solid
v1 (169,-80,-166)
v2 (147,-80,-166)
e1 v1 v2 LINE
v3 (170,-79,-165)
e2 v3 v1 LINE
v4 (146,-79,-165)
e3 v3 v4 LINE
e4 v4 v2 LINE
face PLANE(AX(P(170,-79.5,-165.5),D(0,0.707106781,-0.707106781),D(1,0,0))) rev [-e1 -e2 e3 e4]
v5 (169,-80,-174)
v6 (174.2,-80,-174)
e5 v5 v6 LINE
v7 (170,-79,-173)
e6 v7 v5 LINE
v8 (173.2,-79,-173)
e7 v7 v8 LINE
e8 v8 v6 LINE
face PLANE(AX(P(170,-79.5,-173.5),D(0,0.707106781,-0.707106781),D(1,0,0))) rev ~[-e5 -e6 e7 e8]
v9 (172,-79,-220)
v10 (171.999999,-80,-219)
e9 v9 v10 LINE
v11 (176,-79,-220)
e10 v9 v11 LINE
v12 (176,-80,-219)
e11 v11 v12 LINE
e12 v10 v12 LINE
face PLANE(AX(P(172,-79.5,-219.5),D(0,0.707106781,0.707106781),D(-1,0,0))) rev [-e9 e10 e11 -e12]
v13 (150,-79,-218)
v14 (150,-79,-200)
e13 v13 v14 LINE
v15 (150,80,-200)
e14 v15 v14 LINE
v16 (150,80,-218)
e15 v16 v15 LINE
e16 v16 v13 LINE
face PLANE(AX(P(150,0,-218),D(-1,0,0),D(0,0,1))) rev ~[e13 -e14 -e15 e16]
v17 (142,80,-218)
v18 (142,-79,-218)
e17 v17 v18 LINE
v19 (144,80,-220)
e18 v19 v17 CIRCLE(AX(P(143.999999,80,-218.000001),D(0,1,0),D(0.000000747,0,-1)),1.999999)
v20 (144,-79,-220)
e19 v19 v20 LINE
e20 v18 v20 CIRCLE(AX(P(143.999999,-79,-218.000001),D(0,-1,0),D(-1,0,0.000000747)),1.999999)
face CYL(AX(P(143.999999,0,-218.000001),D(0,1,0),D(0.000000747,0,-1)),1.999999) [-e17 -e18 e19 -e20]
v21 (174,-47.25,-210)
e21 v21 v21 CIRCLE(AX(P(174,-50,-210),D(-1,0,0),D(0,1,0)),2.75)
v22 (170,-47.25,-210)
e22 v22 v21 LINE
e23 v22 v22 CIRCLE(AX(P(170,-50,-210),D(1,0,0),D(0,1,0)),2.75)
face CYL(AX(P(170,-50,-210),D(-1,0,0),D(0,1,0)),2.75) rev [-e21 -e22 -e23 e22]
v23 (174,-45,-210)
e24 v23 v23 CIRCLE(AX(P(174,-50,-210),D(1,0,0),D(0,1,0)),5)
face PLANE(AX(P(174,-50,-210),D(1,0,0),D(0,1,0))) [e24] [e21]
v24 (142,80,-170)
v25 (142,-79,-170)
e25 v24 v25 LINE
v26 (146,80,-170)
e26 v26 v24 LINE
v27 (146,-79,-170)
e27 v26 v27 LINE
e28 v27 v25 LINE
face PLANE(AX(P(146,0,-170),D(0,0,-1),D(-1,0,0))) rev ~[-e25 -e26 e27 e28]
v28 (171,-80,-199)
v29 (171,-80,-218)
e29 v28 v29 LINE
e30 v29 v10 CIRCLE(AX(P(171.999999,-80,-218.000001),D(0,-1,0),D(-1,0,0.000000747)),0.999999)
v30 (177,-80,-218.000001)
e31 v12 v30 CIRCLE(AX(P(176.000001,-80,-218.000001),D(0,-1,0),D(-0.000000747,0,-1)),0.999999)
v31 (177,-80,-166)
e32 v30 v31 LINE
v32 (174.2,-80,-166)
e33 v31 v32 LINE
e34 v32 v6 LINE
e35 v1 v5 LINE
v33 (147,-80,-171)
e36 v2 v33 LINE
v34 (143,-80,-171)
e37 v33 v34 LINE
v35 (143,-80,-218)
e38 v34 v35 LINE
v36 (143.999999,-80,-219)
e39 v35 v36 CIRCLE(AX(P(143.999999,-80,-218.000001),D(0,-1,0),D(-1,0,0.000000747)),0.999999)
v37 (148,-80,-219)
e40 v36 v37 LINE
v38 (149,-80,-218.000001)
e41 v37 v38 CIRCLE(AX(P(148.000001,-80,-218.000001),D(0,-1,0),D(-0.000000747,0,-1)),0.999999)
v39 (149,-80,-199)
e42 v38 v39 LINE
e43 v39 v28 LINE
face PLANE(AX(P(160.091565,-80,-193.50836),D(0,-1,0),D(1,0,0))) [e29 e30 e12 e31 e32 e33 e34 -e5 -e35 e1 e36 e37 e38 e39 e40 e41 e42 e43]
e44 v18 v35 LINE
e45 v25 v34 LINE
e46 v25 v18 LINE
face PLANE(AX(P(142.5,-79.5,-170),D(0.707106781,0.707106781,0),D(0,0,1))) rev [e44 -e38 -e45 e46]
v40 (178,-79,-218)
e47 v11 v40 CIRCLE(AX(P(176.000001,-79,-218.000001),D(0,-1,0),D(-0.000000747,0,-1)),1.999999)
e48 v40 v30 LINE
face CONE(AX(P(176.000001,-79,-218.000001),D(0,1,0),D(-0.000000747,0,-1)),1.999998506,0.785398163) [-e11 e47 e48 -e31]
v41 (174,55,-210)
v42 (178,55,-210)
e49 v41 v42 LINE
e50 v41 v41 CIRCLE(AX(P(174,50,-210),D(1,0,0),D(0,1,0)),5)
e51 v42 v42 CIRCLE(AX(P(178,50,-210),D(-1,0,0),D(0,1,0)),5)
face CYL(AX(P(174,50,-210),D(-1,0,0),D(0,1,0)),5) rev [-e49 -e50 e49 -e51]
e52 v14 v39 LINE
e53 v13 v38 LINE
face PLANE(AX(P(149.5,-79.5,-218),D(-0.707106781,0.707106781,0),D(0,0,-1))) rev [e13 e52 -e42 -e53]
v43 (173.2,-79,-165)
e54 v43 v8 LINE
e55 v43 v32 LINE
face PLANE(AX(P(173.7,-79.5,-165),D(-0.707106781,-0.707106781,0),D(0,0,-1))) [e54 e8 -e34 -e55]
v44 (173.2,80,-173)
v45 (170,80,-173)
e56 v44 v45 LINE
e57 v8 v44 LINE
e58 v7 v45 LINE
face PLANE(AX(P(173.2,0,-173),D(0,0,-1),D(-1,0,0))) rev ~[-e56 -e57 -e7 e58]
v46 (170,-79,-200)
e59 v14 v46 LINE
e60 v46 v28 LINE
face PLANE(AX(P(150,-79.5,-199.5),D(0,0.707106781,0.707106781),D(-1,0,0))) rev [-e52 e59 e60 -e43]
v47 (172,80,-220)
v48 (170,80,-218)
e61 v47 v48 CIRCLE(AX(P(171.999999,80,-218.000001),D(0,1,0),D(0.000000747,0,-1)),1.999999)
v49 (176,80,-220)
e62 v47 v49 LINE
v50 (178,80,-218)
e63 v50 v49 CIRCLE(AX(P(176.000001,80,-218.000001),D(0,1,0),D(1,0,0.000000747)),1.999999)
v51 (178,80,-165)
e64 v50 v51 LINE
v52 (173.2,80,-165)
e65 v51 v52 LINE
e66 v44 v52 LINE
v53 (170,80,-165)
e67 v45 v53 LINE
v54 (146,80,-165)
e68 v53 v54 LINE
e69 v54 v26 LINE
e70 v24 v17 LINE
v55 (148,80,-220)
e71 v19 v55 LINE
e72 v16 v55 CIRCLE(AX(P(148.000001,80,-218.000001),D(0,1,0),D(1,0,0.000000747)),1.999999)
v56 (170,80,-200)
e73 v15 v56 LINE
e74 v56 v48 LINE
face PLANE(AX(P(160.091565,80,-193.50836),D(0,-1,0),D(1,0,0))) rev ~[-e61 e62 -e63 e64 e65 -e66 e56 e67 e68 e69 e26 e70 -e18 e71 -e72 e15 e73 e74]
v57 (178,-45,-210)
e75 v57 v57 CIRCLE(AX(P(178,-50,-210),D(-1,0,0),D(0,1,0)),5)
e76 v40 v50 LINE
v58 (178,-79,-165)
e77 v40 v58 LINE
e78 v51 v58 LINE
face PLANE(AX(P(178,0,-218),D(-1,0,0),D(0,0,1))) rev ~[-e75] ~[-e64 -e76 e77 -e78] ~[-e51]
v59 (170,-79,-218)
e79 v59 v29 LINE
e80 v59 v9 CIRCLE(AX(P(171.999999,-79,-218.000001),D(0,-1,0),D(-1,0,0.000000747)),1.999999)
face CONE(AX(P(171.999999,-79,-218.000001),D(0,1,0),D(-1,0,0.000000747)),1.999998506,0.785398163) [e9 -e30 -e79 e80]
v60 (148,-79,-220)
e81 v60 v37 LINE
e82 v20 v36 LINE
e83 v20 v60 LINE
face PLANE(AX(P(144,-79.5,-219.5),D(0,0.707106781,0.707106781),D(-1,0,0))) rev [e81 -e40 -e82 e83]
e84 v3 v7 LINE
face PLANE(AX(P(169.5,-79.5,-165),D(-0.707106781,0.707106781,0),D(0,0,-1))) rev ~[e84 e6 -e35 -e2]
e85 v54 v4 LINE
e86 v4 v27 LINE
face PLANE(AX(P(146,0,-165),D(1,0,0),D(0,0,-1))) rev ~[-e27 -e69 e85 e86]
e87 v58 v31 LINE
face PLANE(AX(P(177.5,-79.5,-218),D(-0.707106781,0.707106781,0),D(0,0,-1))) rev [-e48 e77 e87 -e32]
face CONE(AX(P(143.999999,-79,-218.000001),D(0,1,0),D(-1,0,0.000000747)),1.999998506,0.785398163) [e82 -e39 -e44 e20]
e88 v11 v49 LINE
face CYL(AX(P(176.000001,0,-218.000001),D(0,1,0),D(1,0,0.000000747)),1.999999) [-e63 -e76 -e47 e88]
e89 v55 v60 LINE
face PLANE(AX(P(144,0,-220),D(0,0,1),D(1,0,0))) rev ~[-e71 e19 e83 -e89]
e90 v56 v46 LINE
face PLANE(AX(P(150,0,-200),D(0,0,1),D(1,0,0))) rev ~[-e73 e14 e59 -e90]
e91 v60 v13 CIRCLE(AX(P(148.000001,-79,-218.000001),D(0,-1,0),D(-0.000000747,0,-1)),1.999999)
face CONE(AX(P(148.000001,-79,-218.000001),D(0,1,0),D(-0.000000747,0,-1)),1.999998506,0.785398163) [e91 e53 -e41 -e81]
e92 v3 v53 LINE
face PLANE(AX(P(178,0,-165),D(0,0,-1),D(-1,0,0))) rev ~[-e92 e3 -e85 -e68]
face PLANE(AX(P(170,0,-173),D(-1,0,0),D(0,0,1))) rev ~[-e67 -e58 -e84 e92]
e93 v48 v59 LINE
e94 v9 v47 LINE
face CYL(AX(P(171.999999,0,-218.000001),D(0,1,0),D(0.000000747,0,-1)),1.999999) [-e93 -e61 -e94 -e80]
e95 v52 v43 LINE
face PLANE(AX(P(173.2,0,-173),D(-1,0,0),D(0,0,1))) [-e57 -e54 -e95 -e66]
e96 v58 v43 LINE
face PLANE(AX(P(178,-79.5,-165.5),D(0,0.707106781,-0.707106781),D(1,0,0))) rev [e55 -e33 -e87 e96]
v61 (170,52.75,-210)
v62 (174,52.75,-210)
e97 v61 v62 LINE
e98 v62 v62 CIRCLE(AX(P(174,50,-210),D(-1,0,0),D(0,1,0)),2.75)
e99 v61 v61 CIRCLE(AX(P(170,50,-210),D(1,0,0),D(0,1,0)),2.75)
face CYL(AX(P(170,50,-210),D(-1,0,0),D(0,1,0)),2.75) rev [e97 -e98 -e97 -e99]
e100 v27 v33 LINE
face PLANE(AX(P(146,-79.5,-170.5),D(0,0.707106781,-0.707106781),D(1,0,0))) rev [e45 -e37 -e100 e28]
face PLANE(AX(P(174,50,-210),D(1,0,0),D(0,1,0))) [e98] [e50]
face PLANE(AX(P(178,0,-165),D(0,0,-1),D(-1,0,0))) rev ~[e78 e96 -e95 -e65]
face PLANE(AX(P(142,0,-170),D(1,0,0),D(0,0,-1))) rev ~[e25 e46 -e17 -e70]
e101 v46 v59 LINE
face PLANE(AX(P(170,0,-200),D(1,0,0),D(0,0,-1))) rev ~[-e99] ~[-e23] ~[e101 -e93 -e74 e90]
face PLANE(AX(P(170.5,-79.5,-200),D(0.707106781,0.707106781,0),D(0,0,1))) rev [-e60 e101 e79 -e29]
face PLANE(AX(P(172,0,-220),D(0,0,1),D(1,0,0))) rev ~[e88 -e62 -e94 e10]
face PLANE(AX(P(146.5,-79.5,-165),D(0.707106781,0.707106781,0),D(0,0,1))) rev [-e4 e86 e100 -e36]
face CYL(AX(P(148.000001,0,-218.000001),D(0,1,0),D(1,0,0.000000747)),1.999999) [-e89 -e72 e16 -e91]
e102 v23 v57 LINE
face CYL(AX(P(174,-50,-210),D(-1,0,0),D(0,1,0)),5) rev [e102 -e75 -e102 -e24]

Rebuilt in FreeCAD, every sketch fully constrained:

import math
import FreeCAD as App
import Part
import Sketcher
from FreeCAD import Vector


def edges_at(feature, points):
    """Names of the edges that pass closest to the given points."""
    edges = feature.Shape.Edges
    near = lambda p: min(range(len(edges)), key=lambda i: edges[i].distToShape(Part.Vertex(*p))[0])
    return sorted({f"Edge{near(p) + 1}" for p in points})


def add_polygon(sketch, points):
    """Adds a closed chain of lines whose ends are joined by coincident constraints."""
    first, n = sketch.GeometryCount, len(points)
    for a, b in zip(points, points[1:] + points[:1]):
        sketch.addGeometry(Part.LineSegment(App.Vector(*a, 0), App.Vector(*b, 0)), False)
    for i in range(n):
        sketch.addConstraint(Sketcher.Constraint("Coincident", first + i, 2, first + (i + 1) % n, 1))

doc = App.newDocument("Part")
body = doc.addObject("PartDesign::Body", "Body")

# Sketch on YZ plane
sketch1 = doc.addObject("Sketcher::SketchObject", "Sketch")
body.addObject(sketch1)
sketch1.AttachmentSupport = (doc.YZ_Plane, [""])
sketch1.MapMode = "FlatFace"
sketch1.addGeometry(Part.LineSegment(Vector(-8, 55, 0), Vector(-8, 2, 0)), False)
sketch1.addGeometry(Part.ArcOfCircle(Part.Circle(Vector(-6.000001, 1.999999, 0), Vector(0, 0, 1), 1.999999), math.radians(179.999957), math.radians(270.000043)), False)
sketch1.addGeometry(Part.LineSegment(Vector(-6, 0, 0), Vector(-2, 0, 0)), False)
sketch1.addGeometry(Part.ArcOfCircle(Part.Circle(Vector(-1.999999, 1.999999, 0), Vector(0, 0, 1), 1.999999), math.radians(-90.000043), math.radians(0.000043)), False)
sketch1.addGeometry(Part.LineSegment(Vector(0, 2, 0), Vector(0, 20, 0)), False)
sketch1.addGeometry(Part.LineSegment(Vector(0, 20, 0), Vector(20, 20, 0)), False)
sketch1.addGeometry(Part.LineSegment(Vector(20, 20, 0), Vector(20, 2, 0)), False)
sketch1.addGeometry(Part.ArcOfCircle(Part.Circle(Vector(21.999999, 1.999999, 0), Vector(0, 0, 1), 1.999999), math.radians(179.999957), math.radians(270.000043)), False)
sketch1.addGeometry(Part.LineSegment(Vector(22, 0, 0), Vector(26, 0, 0)), False)
sketch1.addGeometry(Part.ArcOfCircle(Part.Circle(Vector(26.000001, 1.999999, 0), Vector(0, 0, 1), 1.999999), math.radians(-90.000043), math.radians(0.000043)), False)
sketch1.addGeometry(Part.LineSegment(Vector(28, 2, 0), Vector(28, 50, 0)), False)
sketch1.addGeometry(Part.LineSegment(Vector(28, 50, 0), Vector(24, 50, 0)), False)
sketch1.addGeometry(Part.LineSegment(Vector(24, 50, 0), Vector(24, 55, 0)), False)
sketch1.addGeometry(Part.LineSegment(Vector(24, 55, 0), Vector(-8, 55, 0)), False)
sketch1.addConstraint(Sketcher.Constraint("Tangent", 0, 2, 1, 1))
sketch1.addConstraint(Sketcher.Constraint("Tangent", 1, 2, 2, 1))
sketch1.addConstraint(Sketcher.Constraint("Tangent", 2, 2, 3, 1))
sketch1.addConstraint(Sketcher.Constraint("Tangent", 3, 2, 4, 1))
sketch1.addConstraint(Sketcher.Constraint("Coincident", 4, 2, 5, 1))
sketch1.addConstraint(Sketcher.Constraint("Coincident", 5, 2, 6, 1))
sketch1.addConstraint(Sketcher.Constraint("Tangent", 6, 2, 7, 1))
sketch1.addConstraint(Sketcher.Constraint("Tangent", 7, 2, 8, 1))
sketch1.addConstraint(Sketcher.Constraint("Tangent", 8, 2, 9, 1))
sketch1.addConstraint(Sketcher.Constraint("Tangent", 9, 2, 10, 1))
sketch1.addConstraint(Sketcher.Constraint("Coincident", 10, 2, 11, 1))
sketch1.addConstraint(Sketcher.Constraint("Coincident", 11, 2, 12, 1))
sketch1.addConstraint(Sketcher.Constraint("Coincident", 12, 2, 13, 1))
sketch1.addConstraint(Sketcher.Constraint("Coincident", 13, 2, 0, 1))
sketch1.addConstraint(Sketcher.Constraint("Vertical", 0))
sketch1.addConstraint(Sketcher.Constraint("Horizontal", 2))
sketch1.addConstraint(Sketcher.Constraint("Vertical", 4))
sketch1.addConstraint(Sketcher.Constraint("Horizontal", 5))
sketch1.addConstraint(Sketcher.Constraint("Vertical", 6))
sketch1.addConstraint(Sketcher.Constraint("Horizontal", 8))
sketch1.addConstraint(Sketcher.Constraint("Vertical", 10))
sketch1.addConstraint(Sketcher.Constraint("Horizontal", 11))
sketch1.addConstraint(Sketcher.Constraint("Vertical", 12))
sketch1.addConstraint(Sketcher.Constraint("Horizontal", 13))
sketch1.addConstraint(Sketcher.Constraint("Equal", 1, 3))
sketch1.addConstraint(Sketcher.Constraint("Equal", 3, 7))
sketch1.addConstraint(Sketcher.Constraint("Equal", 7, 9))
sketch1.addConstraint(Sketcher.Constraint("PointOnObject", 1, 2, -1))
sketch1.addConstraint(Sketcher.Constraint("PointOnObject", 3, 2, -2))
sketch1.addConstraint(Sketcher.Constraint("PointOnObject", 7, 2, -1))
sketch1.addConstraint(Sketcher.Constraint("Equal", 2, 8))
sketch1.addConstraint(Sketcher.Constraint("Equal", 8, 11))
sketch1.addConstraint(Sketcher.Constraint("Radius", 1, 1.999999))
sketch1.addConstraint(Sketcher.Constraint("DistanceX", 2, 1, 2, 2, 4.0))
sketch1.addConstraint(Sketcher.Constraint("DistanceX", 5, 1, 5, 2, 20.0))
sketch1.addConstraint(Sketcher.Constraint("DistanceY", 0, 2, 0, 1, 53.0))
sketch1.addConstraint(Sketcher.Constraint("DistanceY", 4, 1, 4, 2, 18.0))
sketch1.addConstraint(Sketcher.Constraint("DistanceY", 10, 1, 10, 2, 48.0))
pad1 = doc.addObject("PartDesign::Pad", "Pad")
body.addObject(pad1)
pad1.Profile = sketch1
pad1.Length = 160
pad1.Midplane = True

# Sketch on XZ plane
sketch2 = doc.addObject("Sketcher::SketchObject", "Sketch001")
body.addObject(sketch2)
sketch2.AttachmentSupport = (doc.XZ_Plane, [""])
sketch2.MapMode = "FlatFace"
sketch2.addGeometry(Part.Circle(Vector(-50, 10, 0), Vector(0, 0, 1), 2.75), False)
sketch2.addGeometry(Part.Circle(Vector(50, 10, 0), Vector(0, 0, 1), 2.75), False)
sketch2.addConstraint(Sketcher.Constraint("Equal", 0, 1))
sketch2.addConstraint(Sketcher.Constraint("Symmetric", 0, 3, 1, 3, -2))
sketch2.addConstraint(Sketcher.Constraint("Diameter", 0, 5.5))
sketch2.addConstraint(Sketcher.Constraint("DistanceX", 0, 3, -1, 1, 50.0))
sketch2.addConstraint(Sketcher.Constraint("DistanceY", -1, 1, 0, 3, 10.0))
pocket1 = doc.addObject("PartDesign::Pocket", "Pocket")
body.addObject(pocket1)
pocket1.Profile = sketch2
pocket1.Type = "ThroughAll"
pocket1.Reversed = True

# Sketch on XZ plane
sketch3 = doc.addObject("Sketcher::SketchObject", "Sketch002")
body.addObject(sketch3)
sketch3.AttachmentSupport = (doc.XZ_Plane, [""])
sketch3.MapMode = "FlatFace"
sketch3.AttachmentOffset = App.Placement(Vector(0, 0, 4), App.Rotation())
sketch3.addGeometry(Part.Circle(Vector(50, 10, 0), Vector(0, 0, 1), 5), False)
sketch3.addGeometry(Part.Circle(Vector(-50, 10, 0), Vector(0, 0, 1), 5), False)
sketch3.addConstraint(Sketcher.Constraint("Equal", 0, 1))
sketch3.addConstraint(Sketcher.Constraint("Symmetric", 0, 3, 1, 3, -2))
sketch3.addConstraint(Sketcher.Constraint("Diameter", 0, 10.0))
sketch3.addConstraint(Sketcher.Constraint("DistanceX", -1, 1, 0, 3, 50.0))
sketch3.addConstraint(Sketcher.Constraint("DistanceY", -1, 1, 0, 3, 10.0))
pocket2 = doc.addObject("PartDesign::Pocket", "Pocket001")
body.addObject(pocket2)
pocket2.Profile = sketch3
pocket2.Type = "ThroughAll"
pocket2.Reversed = True

# Sketch on YZ plane
sketch4 = doc.addObject("Sketcher::SketchObject", "Sketch003")
body.addObject(sketch4)
sketch4.AttachmentSupport = (doc.YZ_Plane, [""])
sketch4.MapMode = "FlatFace"
add_polygon(sketch4, [(-3.2, 55), (-3.2, 47), (0, 47), (0, 55)])  # lines 0-3
sketch4.addConstraint(Sketcher.Constraint("Vertical", 0))
sketch4.addConstraint(Sketcher.Constraint("Horizontal", 1))
sketch4.addConstraint(Sketcher.Constraint("Vertical", 2))
sketch4.addConstraint(Sketcher.Constraint("Horizontal", 3))
sketch4.addConstraint(Sketcher.Constraint("PointOnObject", 1, 2, -2))
sketch4.addConstraint(Sketcher.Constraint("DistanceY", 0, 2, 0, 1, 8.0))
sketch4.addConstraint(Sketcher.Constraint("DistanceX", 1, 1, 1, 2, 3.2))
sketch4.addConstraint(Sketcher.Constraint("DistanceY", -1, 1, 0, 2, 47.0))
pocket3 = doc.addObject("PartDesign::Pocket", "Pocket002")
body.addObject(pocket3)
pocket3.Profile = sketch4
pocket3.Type = "ThroughAll"
pocket3.Midplane = True
doc.recompute()

chamfer = doc.addObject("PartDesign::Chamfer", "Chamfer")
body.addObject(chamfer)
chamfer.Base = (pocket3, edges_at(pocket3, [
    (-80, -4, 0),
    (-80, -7.414, 0.586),
    (-80, -8, 28.5),
    (-80, -5.6, 55),
    (-80, -3.2, 51),
    (-80, -1.6, 47),
    (-80, 0, 51),
    (-80, 12, 55),
    (-80, 24, 52.5),
    (-80, 26, 50),
    (-80, 28, 26),
    (-80, 27.414, 0.586),
    (-80, 24, 0),
    (-80, 20.586, 0.586),
    (-80, 20, 11),
    (-80, 10, 20),
    (-80, 0, 11),
    (-80, -0.586, 0.586),
]))
chamfer.Size = 1
body2 = doc.addObject("PartDesign::Body", "Body001")
doc.recompute()

body.Placement = App.Placement(Vector(170, 0, -220), App.Rotation(Vector(0, 0, 1), 90))
boolean = doc.addObject("PartDesign::Boolean", "Boolean")
body2.addObject(boolean)
boolean.Type = "Fuse"
boolean.addObjects([body])

doc.recompute()
